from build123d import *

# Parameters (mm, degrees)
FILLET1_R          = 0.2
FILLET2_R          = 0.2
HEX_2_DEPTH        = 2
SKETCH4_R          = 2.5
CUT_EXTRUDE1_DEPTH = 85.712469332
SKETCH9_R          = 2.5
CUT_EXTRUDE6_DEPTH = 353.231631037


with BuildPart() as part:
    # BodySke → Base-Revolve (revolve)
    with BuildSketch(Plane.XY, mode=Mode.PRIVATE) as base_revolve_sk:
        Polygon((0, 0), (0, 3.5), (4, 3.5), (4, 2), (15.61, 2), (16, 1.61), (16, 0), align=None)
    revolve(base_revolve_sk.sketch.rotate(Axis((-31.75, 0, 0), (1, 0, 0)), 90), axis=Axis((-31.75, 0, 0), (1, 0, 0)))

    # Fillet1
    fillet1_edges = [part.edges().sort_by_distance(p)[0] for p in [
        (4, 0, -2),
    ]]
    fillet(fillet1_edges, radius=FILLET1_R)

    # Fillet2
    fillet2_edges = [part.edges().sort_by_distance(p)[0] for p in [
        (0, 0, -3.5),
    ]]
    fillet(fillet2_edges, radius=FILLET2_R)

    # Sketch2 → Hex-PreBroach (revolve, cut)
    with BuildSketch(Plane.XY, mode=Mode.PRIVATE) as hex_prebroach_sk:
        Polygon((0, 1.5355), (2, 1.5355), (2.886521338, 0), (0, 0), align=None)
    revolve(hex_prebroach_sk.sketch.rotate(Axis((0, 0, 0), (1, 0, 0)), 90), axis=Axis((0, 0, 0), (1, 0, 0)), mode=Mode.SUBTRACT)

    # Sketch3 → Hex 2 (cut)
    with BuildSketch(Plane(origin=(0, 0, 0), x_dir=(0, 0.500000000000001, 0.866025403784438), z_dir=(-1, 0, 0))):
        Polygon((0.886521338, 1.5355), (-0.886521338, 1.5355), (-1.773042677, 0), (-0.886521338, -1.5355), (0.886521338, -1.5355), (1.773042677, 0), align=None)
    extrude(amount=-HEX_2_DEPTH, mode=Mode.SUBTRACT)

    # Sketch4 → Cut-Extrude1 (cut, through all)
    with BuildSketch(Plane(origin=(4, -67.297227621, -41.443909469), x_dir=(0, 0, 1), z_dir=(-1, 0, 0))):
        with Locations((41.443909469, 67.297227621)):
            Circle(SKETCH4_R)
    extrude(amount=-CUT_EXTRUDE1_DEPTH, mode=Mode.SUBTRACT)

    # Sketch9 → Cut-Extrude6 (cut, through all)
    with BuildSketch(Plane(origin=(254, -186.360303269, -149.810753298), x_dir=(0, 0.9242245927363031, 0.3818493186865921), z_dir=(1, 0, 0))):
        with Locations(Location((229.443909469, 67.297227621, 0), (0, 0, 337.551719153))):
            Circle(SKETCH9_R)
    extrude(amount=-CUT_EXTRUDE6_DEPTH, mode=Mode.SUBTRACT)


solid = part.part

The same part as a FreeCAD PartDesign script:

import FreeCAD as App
import Part
import Sketcher

V = App.Vector
Q = App.Units.Quantity


def edges_at(feature, points):
    """Names of the edges that pass closest to the given points."""
    edges = feature.Shape.Edges
    near = lambda p: min(range(len(edges)), key=lambda i: edges[i].distToShape(Part.Vertex(*p))[0])
    return sorted({f"Edge{near(p) + 1}" for p in points})


def add_polygon(sketch, points):
    """Adds a closed chain of lines whose ends are joined by coincident constraints."""
    first, n = sketch.GeometryCount, len(points)
    for a, b in zip(points, points[1:] + points[:1]):
        sketch.addGeometry(Part.LineSegment(App.Vector(*a, 0), App.Vector(*b, 0)), False)
    for i in range(n):
        sketch.addConstraint(Sketcher.Constraint("Coincident", first + i, 2, first + (i + 1) % n, 1))

doc = App.newDocument("Part")
params = doc.addObject("Spreadsheet::Sheet", "Params")
for row, (alias, value) in enumerate([
    ("sketch1_width", "16 mm"),
    ("sketch1_width2", "4 mm"),
    ("sketch1_height", "3.5 mm"),
    ("sketch1_height2", "1.5 mm"),
    ("sketch1_width3", "11.61 mm"),
    ("revolution_angle", "360 deg"),
    ("fillet_radius", "0.2 mm"),
    ("fillet2_radius", "0.2 mm"),
    ("sketch2_width", "2 mm"),
    ("groove_angle", "360 deg"),
    ("pocket1_length", "2 mm"),
    ("sketch4_diameter", "5 mm"),
    ("sketch5_diameter", "5 mm"),
], start=1):
    params.set(f"A{row}", alias)
    params.set(f"B{row}", "=" + value)
    params.setAlias(f"B{row}", alias)

body = doc.addObject("PartDesign::Body", "Body")

# Sketch on XY plane
sketch1 = body.newObject("Sketcher::SketchObject", "Sketch")
sketch1.AttachmentSupport = (doc.getObject("XY_Plane"), [""])
sketch1.MapMode = "FlatFace"
add_polygon(sketch1, [(0, 3.5), (0, 0), (16, 0), (16, 1.6), (15.6, 2), (4, 2), (4, 3.5)])  # lines 0-6
sketch1.addConstraint([
    Sketcher.Constraint("Vertical", 0),
    Sketcher.Constraint("Horizontal", 1),
    Sketcher.Constraint("Vertical", 2),
    Sketcher.Constraint("Horizontal", 4),
    Sketcher.Constraint("Vertical", 5),
    Sketcher.Constraint("Horizontal", 6),
    Sketcher.Constraint("Coincident", 0, 2, -1, 1),
    Sketcher.Constraint("DistanceX", 1, 1, 1, 2, 16.0),
    Sketcher.Constraint("DistanceX", 6, 2, 6, 1, 4.0),
    Sketcher.Constraint("Angle", 3, Q("135 deg")),
    Sketcher.Constraint("DistanceY", 0, 2, 0, 1, 3.5),
    Sketcher.Constraint("DistanceY", 5, 1, 5, 2, 1.5),
    Sketcher.Constraint("DistanceX", 4, 2, 4, 1, 11.61),
])
sketch1.setExpression("Constraints[14]", "Params.sketch1_width")
sketch1.setExpression("Constraints[15]", "Params.sketch1_width2")
sketch1.setExpression("Constraints[17]", "Params.sketch1_height")
sketch1.setExpression("Constraints[18]", "Params.sketch1_height2")
sketch1.setExpression("Constraints[19]", "Params.sketch1_width3")
revolution = body.newObject("PartDesign::Revolution", "Revolution")
revolution.Profile = sketch1
revolution.ReferenceAxis = (sketch1, ["H_Axis"])
revolution.setExpression("Angle", "Params.revolution_angle")
doc.recompute()

fillet = body.newObject("PartDesign::Fillet", "Fillet")
fillet.Base = (revolution, edges_at(revolution, [(4, 0, -2)]))
fillet.setExpression("Radius", "Params.fillet_radius")
doc.recompute()

fillet2 = body.newObject("PartDesign::Fillet", "Fillet001")
fillet2.Base = (fillet, edges_at(fillet, [(0, 0, -3.5)]))
fillet2.setExpression("Radius", "Params.fillet2_radius")

# Sketch on XY plane
sketch2 = body.newObject("Sketcher::SketchObject", "Sketch001")
sketch2.AttachmentSupport = (doc.getObject("XY_Plane"), [""])
sketch2.MapMode = "FlatFace"
add_polygon(sketch2, [(2, 1.5), (0, 1.5), (0, 0), (2.9, 0)])  # lines 0-3
sketch2.addConstraint([
    Sketcher.Constraint("Horizontal", 0),
    Sketcher.Constraint("Vertical", 1),
    Sketcher.Constraint("Horizontal", 2),
    Sketcher.Constraint("Coincident", 1, 2, -1, 1),
    Sketcher.Constraint("DistanceX", 0, 2, 0, 1, 2.0),
    Sketcher.Constraint("Angle", 3, Q("120 deg")),
    Sketcher.Constraint("DistanceY", 1, 2, 1, 1, 1.5355),
])
sketch2.setExpression("Constraints[8]", "Params.sketch2_width")
groove = body.newObject("PartDesign::Groove", "Groove")
groove.Profile = sketch2
groove.ReferenceAxis = (sketch2, ["H_Axis"])
groove.setExpression("Angle", "Params.groove_angle")

# Sketch on YZ plane
sketch3 = body.newObject("Sketcher::SketchObject", "Sketch002")
sketch3.AttachmentSupport = (doc.getObject("YZ_Plane"), [""])
sketch3.MapMode = "FlatFace"
add_polygon(sketch3, [(1.8, 0), (0.9, -1.5), (-0.9, -1.5), (-1.8, 0), (-0.9, 1.5), (0.9, 1.5)])  # lines 0-5
sketch3.addConstraint([
    Sketcher.Constraint("Horizontal", 1),
    Sketcher.Constraint("Horizontal", 4),
    Sketcher.Constraint("Symmetric", 0, 2, 3, 2, -1, 1),
    Sketcher.Constraint("Symmetric", 2, 2, 5, 2, -1, 1),
    Sketcher.Constraint("PointOnObject", 2, 2, -1),
    Sketcher.Constraint("Parallel", 2, 5),
    Sketcher.Constraint("Vertical", 1, 2, 3, 2),
    Sketcher.Constraint("Angle", 0, Q("-120 deg")),
    Sketcher.Constraint("DistanceY", 1, 2, 3, 2, 3.071),
    Sketcher.Constraint("DistanceX", 1, 2, 1, 1, 1.773043),
])
pocket1 = body.newObject("PartDesign::Pocket", "Pocket")
pocket1.Profile = sketch3
pocket1.setExpression("Length", "Params.pocket1_length")
pocket1.Reversed = True

# Sketch on YZ plane
sketch4 = body.newObject("Sketcher::SketchObject", "Sketch003")
sketch4.AttachmentSupport = (doc.getObject("YZ_Plane"), [""])
sketch4.MapMode = "FlatFace"
sketch4.AttachmentOffset = App.Placement(V(0, 0, 4), App.Rotation())
sketch4.addGeometry(Part.Circle(V(0, 0, 0), V(0, 0, 1), 2.5), False)
sketch4.addConstraint([
    Sketcher.Constraint("Coincident", 0, 3, -1, 1),
    Sketcher.Constraint("Diameter", 0, 5.0),
])
sketch4.setExpression("Constraints[1]", "Params.sketch4_diameter")
pocket2 = body.newObject("PartDesign::Pocket", "Pocket001")
pocket2.Profile = sketch4
pocket2.Type = "ThroughAll"
pocket2.Reversed = True

# Sketch on YZ plane
sketch5 = body.newObject("Sketcher::SketchObject", "Sketch004")
sketch5.AttachmentSupport = (doc.getObject("YZ_Plane"), [""])
sketch5.MapMode = "FlatFace"
sketch5.AttachmentOffset = App.Placement(V(0, 0, 254), App.Rotation())
sketch5.addGeometry(Part.Circle(V(0, 0, 0), V(0, 0, 1), 2.5), False)
sketch5.addConstraint([
    Sketcher.Constraint("Coincident", 0, 3, -1, 1),
    Sketcher.Constraint("Diameter", 0, 5.0),
])
sketch5.setExpression("Constraints[1]", "Params.sketch5_diameter")
pocket3 = body.newObject("PartDesign::Pocket", "Pocket002")
pocket3.Profile = sketch5
pocket3.Type = "ThroughAll"

doc.recompute()
